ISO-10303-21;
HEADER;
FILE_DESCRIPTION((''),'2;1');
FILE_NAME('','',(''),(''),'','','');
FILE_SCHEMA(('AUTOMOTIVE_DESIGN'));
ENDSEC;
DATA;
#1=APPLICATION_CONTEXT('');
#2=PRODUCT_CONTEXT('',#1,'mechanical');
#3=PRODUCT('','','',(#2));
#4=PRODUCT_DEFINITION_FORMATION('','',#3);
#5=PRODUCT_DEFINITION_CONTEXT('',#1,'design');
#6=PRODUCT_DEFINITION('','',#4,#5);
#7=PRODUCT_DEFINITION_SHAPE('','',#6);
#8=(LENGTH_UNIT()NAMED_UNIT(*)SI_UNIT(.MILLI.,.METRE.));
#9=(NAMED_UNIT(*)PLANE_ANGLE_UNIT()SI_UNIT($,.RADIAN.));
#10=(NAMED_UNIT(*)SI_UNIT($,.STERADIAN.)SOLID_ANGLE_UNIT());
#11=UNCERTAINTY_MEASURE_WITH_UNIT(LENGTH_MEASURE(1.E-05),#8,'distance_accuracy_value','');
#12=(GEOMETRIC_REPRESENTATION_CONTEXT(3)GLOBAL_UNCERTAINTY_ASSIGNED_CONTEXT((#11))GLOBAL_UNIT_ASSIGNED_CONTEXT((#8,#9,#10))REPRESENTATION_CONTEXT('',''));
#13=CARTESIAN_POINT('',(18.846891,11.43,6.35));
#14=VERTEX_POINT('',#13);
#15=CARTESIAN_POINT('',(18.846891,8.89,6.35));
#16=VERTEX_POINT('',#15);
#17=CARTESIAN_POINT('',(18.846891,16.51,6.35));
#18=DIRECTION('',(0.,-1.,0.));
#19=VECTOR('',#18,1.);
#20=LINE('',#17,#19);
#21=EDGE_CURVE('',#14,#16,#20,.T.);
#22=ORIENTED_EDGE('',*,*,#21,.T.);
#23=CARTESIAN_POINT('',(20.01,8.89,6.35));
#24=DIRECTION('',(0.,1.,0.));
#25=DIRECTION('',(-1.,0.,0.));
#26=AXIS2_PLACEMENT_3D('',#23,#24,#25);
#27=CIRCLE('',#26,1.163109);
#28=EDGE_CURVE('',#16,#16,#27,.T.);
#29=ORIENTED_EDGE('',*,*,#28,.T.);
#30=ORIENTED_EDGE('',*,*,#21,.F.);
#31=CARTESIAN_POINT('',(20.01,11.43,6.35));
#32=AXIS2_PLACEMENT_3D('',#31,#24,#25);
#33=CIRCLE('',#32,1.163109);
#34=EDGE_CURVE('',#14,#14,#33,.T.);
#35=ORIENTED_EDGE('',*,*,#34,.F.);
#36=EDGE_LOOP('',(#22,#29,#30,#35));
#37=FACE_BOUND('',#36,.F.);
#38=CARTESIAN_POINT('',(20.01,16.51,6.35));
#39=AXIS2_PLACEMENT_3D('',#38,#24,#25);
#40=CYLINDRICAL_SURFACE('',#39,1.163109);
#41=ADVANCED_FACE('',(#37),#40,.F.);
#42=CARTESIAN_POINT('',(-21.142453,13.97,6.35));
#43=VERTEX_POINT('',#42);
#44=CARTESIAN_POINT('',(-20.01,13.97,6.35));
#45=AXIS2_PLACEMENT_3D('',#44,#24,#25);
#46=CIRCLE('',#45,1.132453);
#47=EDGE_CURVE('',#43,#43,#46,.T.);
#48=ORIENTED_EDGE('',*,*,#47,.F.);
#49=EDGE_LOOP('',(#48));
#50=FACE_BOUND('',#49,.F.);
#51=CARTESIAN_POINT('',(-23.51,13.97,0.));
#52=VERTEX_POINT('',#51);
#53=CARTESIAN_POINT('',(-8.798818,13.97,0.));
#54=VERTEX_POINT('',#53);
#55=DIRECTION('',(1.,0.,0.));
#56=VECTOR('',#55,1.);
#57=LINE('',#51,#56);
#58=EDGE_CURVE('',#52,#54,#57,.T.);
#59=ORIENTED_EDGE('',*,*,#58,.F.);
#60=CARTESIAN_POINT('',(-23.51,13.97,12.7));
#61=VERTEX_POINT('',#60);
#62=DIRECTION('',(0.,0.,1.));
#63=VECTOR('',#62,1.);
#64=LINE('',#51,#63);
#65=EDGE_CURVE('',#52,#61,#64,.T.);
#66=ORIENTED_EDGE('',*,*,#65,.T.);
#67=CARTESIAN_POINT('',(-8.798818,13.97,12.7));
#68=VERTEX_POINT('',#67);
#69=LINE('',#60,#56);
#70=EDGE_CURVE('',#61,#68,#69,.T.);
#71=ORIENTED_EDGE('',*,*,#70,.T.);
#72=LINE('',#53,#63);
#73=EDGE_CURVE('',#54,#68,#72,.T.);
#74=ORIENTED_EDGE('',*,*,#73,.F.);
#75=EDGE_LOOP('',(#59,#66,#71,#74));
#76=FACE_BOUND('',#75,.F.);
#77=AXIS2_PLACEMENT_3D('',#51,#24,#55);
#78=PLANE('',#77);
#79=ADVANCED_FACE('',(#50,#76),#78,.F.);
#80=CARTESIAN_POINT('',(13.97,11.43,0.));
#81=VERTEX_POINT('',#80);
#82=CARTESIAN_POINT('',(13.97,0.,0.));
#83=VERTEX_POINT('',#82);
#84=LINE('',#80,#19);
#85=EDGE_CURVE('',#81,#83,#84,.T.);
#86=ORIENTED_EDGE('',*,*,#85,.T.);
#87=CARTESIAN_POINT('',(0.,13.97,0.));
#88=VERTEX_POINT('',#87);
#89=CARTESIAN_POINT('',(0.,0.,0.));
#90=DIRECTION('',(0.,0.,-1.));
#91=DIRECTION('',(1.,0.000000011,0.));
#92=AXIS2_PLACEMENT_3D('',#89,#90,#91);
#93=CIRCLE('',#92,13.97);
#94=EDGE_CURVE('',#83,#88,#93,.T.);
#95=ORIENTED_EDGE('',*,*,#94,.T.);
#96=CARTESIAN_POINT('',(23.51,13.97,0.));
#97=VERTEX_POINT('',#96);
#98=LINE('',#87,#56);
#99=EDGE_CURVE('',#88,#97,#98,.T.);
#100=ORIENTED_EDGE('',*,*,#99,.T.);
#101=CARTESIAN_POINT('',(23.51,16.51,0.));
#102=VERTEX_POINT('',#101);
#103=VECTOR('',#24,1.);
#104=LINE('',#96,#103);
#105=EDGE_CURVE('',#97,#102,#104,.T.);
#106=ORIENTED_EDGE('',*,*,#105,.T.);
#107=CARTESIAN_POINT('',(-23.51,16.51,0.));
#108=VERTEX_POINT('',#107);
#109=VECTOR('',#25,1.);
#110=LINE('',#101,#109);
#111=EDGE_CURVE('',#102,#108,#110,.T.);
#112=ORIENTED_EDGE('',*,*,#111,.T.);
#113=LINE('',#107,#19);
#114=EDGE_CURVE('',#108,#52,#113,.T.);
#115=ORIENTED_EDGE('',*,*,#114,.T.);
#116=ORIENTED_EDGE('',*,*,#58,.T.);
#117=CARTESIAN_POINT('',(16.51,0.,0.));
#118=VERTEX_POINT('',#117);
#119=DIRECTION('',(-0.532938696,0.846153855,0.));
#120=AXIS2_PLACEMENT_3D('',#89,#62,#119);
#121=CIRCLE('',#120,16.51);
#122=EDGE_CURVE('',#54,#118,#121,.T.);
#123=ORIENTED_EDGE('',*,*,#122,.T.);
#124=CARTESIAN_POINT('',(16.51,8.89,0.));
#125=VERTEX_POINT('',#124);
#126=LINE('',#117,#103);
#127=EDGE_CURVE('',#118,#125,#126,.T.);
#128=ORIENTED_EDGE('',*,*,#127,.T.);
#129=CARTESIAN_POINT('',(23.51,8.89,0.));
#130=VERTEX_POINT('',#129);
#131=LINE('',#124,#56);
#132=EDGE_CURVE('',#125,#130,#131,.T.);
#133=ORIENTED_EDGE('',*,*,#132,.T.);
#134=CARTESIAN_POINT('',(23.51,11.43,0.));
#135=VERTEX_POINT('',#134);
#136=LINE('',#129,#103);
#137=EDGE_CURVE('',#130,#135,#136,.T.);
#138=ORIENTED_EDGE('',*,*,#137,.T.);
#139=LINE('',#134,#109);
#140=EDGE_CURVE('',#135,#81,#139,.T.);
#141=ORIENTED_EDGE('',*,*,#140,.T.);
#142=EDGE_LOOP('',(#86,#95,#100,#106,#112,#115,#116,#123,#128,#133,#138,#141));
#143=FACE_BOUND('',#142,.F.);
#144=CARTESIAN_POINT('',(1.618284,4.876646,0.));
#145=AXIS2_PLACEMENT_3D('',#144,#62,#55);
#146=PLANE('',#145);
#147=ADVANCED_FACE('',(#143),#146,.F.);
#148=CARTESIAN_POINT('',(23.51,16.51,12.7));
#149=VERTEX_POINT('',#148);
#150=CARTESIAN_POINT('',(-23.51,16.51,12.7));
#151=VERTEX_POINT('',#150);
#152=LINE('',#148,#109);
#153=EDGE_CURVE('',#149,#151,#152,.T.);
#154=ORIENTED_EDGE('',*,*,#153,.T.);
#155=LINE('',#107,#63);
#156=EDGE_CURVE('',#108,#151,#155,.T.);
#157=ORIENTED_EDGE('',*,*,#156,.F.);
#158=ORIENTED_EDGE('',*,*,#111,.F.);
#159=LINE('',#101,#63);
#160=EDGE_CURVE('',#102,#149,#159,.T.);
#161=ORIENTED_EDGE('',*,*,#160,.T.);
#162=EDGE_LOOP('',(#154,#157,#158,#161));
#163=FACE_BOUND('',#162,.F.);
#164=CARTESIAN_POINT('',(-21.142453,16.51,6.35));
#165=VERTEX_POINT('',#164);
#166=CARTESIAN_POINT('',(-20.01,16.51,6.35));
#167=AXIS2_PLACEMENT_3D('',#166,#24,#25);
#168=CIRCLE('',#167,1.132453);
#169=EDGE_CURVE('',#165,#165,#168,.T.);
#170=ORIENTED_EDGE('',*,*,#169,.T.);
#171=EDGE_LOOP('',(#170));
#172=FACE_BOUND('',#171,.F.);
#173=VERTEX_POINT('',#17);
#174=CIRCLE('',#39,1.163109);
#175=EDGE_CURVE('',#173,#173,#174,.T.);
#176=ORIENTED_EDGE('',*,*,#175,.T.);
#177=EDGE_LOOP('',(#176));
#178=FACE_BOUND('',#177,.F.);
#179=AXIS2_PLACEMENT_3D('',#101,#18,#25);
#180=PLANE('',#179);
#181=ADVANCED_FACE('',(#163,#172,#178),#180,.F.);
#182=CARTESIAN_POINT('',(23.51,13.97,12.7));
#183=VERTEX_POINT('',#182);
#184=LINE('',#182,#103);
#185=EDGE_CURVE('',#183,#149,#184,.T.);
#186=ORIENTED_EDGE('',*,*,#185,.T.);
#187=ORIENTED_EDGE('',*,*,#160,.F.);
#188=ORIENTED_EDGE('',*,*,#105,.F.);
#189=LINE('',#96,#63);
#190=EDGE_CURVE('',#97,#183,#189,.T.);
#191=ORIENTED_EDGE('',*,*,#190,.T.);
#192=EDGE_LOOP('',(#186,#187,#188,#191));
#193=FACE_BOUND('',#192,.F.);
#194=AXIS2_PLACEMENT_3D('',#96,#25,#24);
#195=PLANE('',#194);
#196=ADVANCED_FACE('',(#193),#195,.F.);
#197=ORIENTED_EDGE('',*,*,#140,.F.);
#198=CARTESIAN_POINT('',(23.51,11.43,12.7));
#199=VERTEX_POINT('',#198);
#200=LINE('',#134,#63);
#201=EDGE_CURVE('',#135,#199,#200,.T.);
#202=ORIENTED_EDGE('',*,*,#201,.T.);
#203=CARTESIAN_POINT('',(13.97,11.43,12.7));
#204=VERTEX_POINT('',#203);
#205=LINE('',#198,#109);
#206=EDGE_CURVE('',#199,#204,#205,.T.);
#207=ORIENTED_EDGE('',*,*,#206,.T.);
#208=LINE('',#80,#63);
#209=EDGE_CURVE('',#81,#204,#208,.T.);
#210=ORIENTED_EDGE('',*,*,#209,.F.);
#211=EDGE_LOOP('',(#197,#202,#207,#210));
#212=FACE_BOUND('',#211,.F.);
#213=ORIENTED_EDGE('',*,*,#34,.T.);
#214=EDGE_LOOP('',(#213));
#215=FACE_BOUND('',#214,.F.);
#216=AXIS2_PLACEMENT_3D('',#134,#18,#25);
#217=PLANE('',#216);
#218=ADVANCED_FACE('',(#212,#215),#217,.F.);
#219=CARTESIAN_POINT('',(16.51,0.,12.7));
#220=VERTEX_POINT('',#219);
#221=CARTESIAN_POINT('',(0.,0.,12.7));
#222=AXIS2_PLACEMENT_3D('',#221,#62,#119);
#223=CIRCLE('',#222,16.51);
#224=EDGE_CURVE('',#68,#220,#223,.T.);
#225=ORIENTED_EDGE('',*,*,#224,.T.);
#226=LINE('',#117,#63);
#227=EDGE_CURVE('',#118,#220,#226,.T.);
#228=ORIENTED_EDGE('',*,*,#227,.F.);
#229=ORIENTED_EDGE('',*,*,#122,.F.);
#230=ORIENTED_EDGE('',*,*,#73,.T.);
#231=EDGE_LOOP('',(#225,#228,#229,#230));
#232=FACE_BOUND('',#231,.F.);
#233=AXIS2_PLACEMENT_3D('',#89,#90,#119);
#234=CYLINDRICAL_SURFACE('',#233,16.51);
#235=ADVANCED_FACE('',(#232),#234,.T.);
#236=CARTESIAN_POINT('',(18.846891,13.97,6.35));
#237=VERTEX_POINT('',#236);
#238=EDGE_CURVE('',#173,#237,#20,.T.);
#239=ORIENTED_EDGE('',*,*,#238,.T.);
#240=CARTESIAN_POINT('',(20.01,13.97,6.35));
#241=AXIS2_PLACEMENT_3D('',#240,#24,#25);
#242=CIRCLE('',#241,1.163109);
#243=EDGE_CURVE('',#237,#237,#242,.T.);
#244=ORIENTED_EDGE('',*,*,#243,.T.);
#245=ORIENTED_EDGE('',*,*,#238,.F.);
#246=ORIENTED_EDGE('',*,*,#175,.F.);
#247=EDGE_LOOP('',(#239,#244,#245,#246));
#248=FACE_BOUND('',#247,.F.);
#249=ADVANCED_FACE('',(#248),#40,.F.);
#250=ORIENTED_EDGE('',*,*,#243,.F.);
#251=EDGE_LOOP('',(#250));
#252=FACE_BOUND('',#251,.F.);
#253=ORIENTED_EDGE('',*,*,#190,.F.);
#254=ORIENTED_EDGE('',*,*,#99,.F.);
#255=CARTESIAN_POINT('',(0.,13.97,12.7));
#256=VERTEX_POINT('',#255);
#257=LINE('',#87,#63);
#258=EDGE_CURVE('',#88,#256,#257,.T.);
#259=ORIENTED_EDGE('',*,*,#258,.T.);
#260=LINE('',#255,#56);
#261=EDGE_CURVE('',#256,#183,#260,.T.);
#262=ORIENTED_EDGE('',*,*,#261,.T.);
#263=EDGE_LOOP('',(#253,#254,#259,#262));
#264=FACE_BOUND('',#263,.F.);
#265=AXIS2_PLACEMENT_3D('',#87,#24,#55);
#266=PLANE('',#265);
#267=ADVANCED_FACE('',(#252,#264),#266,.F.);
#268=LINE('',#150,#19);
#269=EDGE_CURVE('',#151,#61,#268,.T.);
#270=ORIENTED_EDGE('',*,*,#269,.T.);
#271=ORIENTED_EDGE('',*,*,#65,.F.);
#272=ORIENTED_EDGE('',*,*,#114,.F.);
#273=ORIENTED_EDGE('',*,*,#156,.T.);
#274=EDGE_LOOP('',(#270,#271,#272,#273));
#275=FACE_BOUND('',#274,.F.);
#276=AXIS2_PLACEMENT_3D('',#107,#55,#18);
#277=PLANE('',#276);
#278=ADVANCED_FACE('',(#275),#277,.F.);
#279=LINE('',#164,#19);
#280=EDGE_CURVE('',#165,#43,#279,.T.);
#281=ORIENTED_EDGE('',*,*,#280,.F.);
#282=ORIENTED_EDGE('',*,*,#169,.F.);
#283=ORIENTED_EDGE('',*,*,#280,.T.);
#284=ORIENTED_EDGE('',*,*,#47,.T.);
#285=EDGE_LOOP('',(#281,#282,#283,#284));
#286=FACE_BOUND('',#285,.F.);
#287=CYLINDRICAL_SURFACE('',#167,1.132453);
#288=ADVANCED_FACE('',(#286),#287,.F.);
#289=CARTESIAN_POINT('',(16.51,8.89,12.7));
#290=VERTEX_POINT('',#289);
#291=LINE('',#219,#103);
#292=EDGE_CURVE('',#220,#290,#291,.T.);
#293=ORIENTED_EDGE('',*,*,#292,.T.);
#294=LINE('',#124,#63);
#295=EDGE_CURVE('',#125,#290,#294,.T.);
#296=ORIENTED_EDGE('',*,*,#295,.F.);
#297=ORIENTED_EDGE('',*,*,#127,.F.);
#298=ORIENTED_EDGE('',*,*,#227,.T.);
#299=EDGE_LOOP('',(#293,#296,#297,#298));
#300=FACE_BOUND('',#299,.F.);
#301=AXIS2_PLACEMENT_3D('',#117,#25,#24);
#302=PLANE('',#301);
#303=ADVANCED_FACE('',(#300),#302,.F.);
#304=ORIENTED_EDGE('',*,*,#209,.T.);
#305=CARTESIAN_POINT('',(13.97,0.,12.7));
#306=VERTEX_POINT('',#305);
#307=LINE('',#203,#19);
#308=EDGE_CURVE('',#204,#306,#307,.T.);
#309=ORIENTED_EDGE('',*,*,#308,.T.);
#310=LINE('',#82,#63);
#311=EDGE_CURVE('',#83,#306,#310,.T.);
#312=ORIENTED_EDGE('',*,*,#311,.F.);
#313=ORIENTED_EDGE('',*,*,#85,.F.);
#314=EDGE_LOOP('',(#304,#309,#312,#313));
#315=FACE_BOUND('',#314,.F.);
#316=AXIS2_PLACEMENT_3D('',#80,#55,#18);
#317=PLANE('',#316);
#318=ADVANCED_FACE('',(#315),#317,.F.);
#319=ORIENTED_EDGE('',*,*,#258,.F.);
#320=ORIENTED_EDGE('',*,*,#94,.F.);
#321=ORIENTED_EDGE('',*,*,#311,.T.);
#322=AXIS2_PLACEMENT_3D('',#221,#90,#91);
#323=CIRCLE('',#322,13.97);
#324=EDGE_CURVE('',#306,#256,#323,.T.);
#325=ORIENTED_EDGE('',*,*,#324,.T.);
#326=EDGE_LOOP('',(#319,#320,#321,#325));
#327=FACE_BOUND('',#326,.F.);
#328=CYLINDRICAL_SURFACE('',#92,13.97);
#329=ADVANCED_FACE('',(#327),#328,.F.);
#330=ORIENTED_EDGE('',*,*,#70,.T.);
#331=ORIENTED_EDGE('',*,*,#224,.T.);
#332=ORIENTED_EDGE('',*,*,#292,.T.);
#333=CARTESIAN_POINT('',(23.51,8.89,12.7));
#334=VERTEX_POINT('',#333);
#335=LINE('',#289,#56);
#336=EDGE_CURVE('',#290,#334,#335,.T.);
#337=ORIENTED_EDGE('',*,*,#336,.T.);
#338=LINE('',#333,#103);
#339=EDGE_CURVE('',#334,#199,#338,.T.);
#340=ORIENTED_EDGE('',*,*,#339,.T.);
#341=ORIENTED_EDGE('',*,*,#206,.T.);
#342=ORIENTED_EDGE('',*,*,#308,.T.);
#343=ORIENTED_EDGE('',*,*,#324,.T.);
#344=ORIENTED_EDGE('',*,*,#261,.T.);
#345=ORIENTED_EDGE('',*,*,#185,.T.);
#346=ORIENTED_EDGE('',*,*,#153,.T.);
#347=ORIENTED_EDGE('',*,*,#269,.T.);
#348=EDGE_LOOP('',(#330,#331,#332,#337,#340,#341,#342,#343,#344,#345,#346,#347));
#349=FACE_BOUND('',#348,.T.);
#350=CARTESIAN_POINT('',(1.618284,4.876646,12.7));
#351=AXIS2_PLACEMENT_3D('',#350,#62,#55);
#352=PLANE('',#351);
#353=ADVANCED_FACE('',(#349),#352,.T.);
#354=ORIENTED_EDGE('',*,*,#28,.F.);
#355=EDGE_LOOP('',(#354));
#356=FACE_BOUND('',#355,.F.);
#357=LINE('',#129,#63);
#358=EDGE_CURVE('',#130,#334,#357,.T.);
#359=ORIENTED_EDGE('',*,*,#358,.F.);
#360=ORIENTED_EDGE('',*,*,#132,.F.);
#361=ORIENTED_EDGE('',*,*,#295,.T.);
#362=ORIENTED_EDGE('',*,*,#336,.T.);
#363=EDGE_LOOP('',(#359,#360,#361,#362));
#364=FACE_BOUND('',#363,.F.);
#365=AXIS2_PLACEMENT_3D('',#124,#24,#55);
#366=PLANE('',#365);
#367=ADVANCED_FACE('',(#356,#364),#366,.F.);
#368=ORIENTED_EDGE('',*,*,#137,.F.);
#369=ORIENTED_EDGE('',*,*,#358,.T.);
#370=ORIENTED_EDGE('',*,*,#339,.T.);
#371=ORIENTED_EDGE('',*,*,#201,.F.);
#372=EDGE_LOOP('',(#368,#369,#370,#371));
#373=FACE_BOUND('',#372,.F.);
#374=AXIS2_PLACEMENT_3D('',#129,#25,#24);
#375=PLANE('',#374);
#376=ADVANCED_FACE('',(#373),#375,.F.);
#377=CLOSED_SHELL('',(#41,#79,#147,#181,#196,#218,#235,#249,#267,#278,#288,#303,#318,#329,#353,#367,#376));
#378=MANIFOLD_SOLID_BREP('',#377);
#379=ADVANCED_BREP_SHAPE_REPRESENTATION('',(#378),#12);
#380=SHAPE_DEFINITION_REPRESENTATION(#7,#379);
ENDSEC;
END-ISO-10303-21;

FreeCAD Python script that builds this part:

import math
import FreeCAD as App
import Part
import Sketcher

V = App.Vector
Q = App.Units.Quantity

doc = App.newDocument("Part")
body = doc.addObject("PartDesign::Body", "Body")

sketch1 = body.newObject("Sketcher::SketchObject", "Sketch")
sketch1.AttachmentSupport = (doc.getObject("XY_Plane"), [""])
sketch1.MapMode = "FlatFace"
sketch1.addGeometry([
    Part.ArcOfCircle(Part.Circle(V(0, 0, 0), V(0, 0, 1), 14), math.radians(90), math.radians(360)),
    Part.LineSegment(V(0, 14, 0), V(23.5, 14, 0)),
    Part.LineSegment(V(23.5, 14, 0), V(23.5, 16.5, 0)),
    Part.LineSegment(V(23.5, 16.5, 0), V(-23.5, 16.5, 0)),
    Part.LineSegment(V(-23.5, 16.5, 0), V(-23.5, 14, 0)),
    Part.LineSegment(V(-23.5, 14, 0), V(-8.8, 14, 0)),
    Part.ArcOfCircle(Part.Circle(V(0, 0, 0), V(0, 0, 1), 16.5), math.radians(122), math.radians(360)),
    Part.LineSegment(V(16.5, 0, 0), V(16.5, 8.9, 0)),
    Part.LineSegment(V(16.5, 8.9, 0), V(23.5, 8.9, 0)),
    Part.LineSegment(V(23.5, 8.9, 0), V(23.5, 11.4, 0)),
    Part.LineSegment(V(23.5, 11.4, 0), V(14, 11.4, 0)),
    Part.LineSegment(V(14, 11.4, 0), V(14, 0, 0)),
], False)
sketch1.addConstraint([
    Sketcher.Constraint("Tangent", 0, 1, 1, 1),
    Sketcher.Constraint("Coincident", 1, 2, 2, 1),
    Sketcher.Constraint("Coincident", 2, 2, 3, 1),
    Sketcher.Constraint("Coincident", 3, 2, 4, 1),
    Sketcher.Constraint("Coincident", 4, 2, 5, 1),
    Sketcher.Constraint("Coincident", 5, 2, 6, 1),
    Sketcher.Constraint("Tangent", 6, 2, 7, 1),
    Sketcher.Constraint("Coincident", 7, 2, 8, 1),
    Sketcher.Constraint("Coincident", 8, 2, 9, 1),
    Sketcher.Constraint("Coincident", 9, 2, 10, 1),
    Sketcher.Constraint("Coincident", 10, 2, 11, 1),
    Sketcher.Constraint("Tangent", 11, 2, 0, 2),
    Sketcher.Constraint("Horizontal", 1),
    Sketcher.Constraint("Vertical", 2),
    Sketcher.Constraint("Horizontal", 3),
    Sketcher.Constraint("Vertical", 4),
    Sketcher.Constraint("Horizontal", 5),
    Sketcher.Constraint("Vertical", 7),
    Sketcher.Constraint("Horizontal", 8),
    Sketcher.Constraint("Vertical", 9),
    Sketcher.Constraint("Horizontal", 10),
    Sketcher.Constraint("Vertical", 11),
    Sketcher.Constraint("Coincident", 0, 3, -1, 1),
    Sketcher.Constraint("Coincident", 6, 3, -1, 1),
    Sketcher.Constraint("Symmetric", 1, 2, 4, 2, -2),
    Sketcher.Constraint("Vertical", 2, 2, 8, 2),
    Sketcher.Constraint("Equal", 4, 9),
    Sketcher.Constraint("Radius", 0, Q("0.55 in")),
    Sketcher.Constraint("Radius", 6, Q("0.65 in")),
    Sketcher.Constraint("DistanceY", 2, 1, 2, 2, Q("0.1 in")),
    Sketcher.Constraint("DistanceY", 7, 1, 7, 2, Q("0.35 in")),
    Sketcher.Constraint("DistanceX", 1, 1, 1, 2, 23.51),
])
pad1 = body.newObject("PartDesign::Pad", "Pad")
pad1.Profile = sketch1
pad1.Length = Q("0.5 in")

sketch2 = body.newObject("Sketcher::SketchObject", "Sketch001")
sketch2.AttachmentSupport = (doc.getObject("XZ_Plane"), [""])
sketch2.MapMode = "FlatFace"
sketch2.AttachmentOffset = App.Placement(V(0, 0, -0.65 * 25.4), App.Rotation())
sketch2.addGeometry([
    Part.Circle(V(-20, 6.3, 0), V(0, 0, 1), 1.1),
    Part.Circle(V(20, 6.3, 0), V(0, 0, 1), 1.2),
], False)
sketch2.addConstraint([
    Sketcher.Constraint("Symmetric", 0, 3, 1, 3, -2),
    Sketcher.Constraint("DistanceY", -1, 1, 0, 3, Q("0.25 in")),
    Sketcher.Constraint("Diameter", 0, 2.264906),
    Sketcher.Constraint("Diameter", 1, 2.326218),
    Sketcher.Constraint("DistanceX", 0, 3, -1, 1, 20.01),
])
pocket1 = body.newObject("PartDesign::Pocket", "Pocket")
pocket1.Profile = sketch2
pocket1.Type = "ThroughAll"
pocket1.Reversed = True

doc.recompute()
